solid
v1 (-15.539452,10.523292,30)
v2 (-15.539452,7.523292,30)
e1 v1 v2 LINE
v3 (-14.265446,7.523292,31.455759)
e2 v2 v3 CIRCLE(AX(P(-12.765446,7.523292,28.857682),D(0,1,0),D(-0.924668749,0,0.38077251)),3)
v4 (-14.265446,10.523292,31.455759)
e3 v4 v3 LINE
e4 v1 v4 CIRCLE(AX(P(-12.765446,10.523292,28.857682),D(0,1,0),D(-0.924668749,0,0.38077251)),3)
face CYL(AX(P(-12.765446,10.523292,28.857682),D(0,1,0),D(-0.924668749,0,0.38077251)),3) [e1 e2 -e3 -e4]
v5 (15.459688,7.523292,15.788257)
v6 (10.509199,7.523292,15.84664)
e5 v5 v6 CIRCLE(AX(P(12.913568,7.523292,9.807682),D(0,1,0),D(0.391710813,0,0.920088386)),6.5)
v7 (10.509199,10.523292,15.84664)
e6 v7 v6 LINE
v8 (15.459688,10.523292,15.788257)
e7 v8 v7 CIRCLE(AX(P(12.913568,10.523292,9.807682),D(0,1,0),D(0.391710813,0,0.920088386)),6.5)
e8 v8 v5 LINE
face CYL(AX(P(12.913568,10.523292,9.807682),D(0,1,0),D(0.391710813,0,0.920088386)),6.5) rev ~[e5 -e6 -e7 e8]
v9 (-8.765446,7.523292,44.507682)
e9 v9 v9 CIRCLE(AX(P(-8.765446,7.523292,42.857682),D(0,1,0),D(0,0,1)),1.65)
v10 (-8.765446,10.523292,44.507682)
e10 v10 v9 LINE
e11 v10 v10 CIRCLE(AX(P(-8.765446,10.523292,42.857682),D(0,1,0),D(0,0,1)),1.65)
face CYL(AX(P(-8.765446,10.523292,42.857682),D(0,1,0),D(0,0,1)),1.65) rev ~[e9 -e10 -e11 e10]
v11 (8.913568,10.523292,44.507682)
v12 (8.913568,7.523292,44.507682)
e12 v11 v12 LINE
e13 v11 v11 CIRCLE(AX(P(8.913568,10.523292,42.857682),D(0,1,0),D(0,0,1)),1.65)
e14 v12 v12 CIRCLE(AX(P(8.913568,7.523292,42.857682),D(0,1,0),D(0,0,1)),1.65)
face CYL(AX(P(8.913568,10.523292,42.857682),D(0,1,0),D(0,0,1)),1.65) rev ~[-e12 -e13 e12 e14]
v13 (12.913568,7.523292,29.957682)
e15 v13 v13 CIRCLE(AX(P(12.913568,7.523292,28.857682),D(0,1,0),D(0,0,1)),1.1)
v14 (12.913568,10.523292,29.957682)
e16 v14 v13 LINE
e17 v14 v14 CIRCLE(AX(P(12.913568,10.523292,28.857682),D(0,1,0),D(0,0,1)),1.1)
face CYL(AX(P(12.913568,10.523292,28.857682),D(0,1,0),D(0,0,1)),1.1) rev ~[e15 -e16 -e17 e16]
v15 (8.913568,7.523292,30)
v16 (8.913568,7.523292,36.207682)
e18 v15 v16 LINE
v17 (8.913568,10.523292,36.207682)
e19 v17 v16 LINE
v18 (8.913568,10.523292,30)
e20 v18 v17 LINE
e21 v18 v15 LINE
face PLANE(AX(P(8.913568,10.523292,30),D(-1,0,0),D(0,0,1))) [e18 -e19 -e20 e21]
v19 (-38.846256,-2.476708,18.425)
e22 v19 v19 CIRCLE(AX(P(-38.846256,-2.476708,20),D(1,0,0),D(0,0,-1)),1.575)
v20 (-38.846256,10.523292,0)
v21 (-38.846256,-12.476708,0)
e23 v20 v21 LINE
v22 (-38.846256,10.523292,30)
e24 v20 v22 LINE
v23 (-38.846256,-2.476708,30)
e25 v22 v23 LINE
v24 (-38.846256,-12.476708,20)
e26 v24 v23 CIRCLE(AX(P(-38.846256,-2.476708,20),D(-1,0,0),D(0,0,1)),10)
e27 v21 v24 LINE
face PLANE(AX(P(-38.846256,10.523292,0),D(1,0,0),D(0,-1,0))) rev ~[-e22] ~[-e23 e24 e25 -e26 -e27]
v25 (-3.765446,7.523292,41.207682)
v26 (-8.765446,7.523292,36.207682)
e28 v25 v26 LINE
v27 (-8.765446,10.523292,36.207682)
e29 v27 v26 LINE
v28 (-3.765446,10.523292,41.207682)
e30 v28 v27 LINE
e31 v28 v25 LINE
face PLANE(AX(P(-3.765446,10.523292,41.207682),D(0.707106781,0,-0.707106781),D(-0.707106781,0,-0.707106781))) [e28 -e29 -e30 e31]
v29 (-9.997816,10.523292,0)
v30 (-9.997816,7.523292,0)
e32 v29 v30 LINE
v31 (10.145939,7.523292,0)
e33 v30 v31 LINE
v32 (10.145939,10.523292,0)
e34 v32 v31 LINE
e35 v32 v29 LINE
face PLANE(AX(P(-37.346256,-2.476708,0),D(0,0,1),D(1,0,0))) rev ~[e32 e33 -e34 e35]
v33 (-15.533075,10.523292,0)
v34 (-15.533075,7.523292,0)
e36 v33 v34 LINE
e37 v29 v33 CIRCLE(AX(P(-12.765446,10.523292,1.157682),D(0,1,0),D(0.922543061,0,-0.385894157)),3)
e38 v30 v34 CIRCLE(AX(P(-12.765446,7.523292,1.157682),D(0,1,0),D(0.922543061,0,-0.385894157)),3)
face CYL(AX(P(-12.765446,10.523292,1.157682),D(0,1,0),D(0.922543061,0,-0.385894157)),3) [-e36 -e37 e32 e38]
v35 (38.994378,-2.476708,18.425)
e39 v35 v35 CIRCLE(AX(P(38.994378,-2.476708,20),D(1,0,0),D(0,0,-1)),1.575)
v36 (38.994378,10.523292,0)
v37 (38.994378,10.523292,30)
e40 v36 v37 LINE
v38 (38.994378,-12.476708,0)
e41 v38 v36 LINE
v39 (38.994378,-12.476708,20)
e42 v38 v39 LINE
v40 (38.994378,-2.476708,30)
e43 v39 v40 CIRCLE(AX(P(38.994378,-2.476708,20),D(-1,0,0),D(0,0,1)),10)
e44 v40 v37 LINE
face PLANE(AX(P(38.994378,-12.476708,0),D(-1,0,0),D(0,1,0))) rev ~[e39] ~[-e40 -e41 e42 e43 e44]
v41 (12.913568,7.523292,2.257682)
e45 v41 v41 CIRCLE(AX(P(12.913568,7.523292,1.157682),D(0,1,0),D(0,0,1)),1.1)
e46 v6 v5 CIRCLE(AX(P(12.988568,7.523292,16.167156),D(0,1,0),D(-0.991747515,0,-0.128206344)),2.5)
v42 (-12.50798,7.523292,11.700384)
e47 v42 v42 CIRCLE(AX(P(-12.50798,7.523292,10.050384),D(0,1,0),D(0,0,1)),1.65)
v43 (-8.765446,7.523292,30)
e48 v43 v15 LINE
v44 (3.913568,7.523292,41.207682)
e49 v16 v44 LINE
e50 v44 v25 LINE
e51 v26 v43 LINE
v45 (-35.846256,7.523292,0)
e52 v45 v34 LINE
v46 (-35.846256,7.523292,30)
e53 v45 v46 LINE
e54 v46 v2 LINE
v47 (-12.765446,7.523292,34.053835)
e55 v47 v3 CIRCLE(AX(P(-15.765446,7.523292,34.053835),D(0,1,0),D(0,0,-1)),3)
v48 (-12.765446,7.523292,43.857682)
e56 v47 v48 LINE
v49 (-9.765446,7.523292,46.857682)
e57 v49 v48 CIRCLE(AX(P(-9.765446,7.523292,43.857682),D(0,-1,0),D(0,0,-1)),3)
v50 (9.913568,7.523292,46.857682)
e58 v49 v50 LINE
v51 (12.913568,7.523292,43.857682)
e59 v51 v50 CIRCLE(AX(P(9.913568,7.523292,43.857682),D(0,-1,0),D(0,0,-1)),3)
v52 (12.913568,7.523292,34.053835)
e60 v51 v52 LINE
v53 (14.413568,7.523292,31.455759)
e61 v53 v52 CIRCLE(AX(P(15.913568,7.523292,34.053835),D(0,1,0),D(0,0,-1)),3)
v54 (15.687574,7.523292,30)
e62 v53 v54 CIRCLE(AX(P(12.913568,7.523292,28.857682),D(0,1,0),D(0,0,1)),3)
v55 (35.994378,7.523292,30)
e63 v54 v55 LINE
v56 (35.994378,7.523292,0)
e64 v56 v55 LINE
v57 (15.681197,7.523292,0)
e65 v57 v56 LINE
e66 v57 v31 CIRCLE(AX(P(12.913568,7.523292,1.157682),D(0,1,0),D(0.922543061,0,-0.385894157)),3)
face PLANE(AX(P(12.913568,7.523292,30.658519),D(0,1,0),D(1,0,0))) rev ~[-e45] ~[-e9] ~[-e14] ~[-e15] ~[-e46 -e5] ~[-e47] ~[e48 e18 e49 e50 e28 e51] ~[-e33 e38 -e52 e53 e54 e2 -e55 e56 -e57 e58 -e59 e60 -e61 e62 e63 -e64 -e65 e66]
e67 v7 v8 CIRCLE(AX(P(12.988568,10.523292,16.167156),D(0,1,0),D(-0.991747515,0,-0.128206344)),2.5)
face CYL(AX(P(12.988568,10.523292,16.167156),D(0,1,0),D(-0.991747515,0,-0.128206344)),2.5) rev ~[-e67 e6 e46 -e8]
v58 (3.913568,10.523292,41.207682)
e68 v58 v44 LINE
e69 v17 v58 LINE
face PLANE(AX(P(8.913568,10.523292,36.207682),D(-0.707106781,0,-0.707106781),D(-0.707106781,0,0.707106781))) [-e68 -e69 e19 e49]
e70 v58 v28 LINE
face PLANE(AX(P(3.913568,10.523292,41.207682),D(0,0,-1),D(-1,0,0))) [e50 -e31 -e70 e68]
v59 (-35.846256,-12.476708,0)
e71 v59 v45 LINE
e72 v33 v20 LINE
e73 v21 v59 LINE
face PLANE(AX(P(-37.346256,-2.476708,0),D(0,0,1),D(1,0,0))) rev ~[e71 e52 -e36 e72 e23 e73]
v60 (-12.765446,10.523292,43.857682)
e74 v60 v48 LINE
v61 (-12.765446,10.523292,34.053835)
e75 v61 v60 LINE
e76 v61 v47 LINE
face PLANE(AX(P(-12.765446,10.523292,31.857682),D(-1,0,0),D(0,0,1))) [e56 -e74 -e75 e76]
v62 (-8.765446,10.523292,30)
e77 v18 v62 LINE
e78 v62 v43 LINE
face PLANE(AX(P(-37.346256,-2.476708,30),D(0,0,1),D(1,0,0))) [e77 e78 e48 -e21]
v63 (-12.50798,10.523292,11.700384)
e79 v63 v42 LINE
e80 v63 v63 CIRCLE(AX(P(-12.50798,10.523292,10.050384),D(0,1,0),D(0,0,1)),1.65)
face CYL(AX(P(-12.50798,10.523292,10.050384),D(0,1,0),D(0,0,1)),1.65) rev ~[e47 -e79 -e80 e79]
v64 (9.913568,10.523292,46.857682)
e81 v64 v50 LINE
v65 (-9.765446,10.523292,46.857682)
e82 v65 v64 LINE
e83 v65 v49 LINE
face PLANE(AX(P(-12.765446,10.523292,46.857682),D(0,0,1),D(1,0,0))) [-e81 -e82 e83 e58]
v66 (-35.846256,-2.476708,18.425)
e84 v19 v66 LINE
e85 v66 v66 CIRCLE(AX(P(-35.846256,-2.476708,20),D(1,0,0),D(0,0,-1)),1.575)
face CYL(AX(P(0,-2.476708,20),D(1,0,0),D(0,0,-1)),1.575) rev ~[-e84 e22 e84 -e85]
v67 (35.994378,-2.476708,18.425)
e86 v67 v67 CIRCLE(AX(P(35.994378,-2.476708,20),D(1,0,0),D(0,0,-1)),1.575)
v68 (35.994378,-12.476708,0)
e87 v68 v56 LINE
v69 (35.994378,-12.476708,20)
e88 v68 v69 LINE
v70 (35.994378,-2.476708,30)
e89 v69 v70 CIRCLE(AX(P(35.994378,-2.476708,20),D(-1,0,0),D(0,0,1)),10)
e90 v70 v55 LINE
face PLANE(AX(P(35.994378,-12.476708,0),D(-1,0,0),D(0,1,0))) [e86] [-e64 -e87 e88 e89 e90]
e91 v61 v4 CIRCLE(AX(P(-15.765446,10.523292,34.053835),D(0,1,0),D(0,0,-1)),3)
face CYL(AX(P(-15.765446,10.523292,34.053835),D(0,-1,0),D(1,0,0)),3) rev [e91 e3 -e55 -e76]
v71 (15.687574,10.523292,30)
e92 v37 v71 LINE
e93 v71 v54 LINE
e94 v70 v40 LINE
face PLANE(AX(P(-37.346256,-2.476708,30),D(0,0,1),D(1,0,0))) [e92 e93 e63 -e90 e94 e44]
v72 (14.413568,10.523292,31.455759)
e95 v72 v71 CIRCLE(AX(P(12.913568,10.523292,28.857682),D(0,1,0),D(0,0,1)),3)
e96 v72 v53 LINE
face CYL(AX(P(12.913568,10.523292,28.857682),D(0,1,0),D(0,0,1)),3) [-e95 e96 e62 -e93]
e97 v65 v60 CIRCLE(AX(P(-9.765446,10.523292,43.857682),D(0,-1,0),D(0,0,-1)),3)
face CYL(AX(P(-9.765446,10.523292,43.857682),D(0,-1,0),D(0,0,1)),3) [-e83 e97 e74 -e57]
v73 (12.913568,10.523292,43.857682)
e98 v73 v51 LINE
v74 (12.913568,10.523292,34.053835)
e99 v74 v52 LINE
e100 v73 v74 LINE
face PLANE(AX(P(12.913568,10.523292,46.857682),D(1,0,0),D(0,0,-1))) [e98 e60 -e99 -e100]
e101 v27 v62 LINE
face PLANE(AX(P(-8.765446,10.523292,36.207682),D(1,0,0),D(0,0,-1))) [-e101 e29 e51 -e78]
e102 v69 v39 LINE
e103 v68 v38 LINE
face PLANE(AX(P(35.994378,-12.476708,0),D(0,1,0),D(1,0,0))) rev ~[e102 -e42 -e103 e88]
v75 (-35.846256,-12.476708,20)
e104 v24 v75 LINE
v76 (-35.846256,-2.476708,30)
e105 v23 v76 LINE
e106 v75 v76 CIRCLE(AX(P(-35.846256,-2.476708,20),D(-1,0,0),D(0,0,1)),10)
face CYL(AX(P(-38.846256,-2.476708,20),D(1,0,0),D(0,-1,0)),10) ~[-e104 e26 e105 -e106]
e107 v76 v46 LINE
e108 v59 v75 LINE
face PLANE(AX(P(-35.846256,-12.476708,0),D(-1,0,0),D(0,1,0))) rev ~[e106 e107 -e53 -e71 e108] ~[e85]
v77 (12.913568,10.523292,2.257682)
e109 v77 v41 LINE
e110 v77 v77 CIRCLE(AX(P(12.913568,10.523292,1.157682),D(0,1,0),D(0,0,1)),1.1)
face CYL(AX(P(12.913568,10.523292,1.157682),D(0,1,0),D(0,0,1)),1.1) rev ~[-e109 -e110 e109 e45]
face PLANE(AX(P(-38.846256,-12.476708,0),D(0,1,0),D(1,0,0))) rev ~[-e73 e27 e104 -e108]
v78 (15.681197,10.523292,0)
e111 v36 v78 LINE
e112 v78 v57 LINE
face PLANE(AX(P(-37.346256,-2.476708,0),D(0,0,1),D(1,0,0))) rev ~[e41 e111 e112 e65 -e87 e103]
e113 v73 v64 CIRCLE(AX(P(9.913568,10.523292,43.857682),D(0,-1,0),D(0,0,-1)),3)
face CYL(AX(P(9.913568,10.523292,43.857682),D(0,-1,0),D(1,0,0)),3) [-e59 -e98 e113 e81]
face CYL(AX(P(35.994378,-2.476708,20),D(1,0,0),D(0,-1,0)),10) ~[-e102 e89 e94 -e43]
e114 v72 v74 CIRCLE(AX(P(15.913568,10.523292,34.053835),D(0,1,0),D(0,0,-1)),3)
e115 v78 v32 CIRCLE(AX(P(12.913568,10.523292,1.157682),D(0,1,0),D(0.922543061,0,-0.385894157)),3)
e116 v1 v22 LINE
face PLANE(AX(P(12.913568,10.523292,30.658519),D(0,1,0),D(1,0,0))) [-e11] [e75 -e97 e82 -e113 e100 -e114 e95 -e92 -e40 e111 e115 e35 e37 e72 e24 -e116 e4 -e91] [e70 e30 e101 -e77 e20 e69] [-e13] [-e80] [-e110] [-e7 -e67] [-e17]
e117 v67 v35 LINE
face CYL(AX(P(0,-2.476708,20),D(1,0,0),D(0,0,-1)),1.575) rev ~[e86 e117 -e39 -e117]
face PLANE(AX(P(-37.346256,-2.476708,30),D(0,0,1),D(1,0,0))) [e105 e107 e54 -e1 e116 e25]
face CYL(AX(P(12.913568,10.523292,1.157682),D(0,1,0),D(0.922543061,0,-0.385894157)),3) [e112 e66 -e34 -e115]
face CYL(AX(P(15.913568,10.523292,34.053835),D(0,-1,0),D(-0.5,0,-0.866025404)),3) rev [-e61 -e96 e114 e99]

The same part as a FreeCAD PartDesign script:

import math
import FreeCAD as App
import Part
import Sketcher

V = App.Vector
Q = App.Units.Quantity


def edges_at(feature, points):
    """Names of the edges that pass closest to the given points."""
    edges = feature.Shape.Edges
    near = lambda p: min(range(len(edges)), key=lambda i: edges[i].distToShape(Part.Vertex(*p))[0])
    return sorted({f"Edge{near(p) + 1}" for p in points})


def add_polygon(sketch, points):
    """Adds a closed chain of lines whose ends are joined by coincident constraints."""
    first, n = sketch.GeometryCount, len(points)
    for a, b in zip(points, points[1:] + points[:1]):
        sketch.addGeometry(Part.LineSegment(App.Vector(*a, 0), App.Vector(*b, 0)), False)
    for i in range(n):
        sketch.addConstraint(Sketcher.Constraint("Coincident", first + i, 2, first + (i + 1) % n, 1))

doc = App.newDocument("Part")
body = doc.addObject("PartDesign::Body", "Body")

# Sketch on XY plane
sketch1 = body.newObject("Sketcher::SketchObject", "Sketch")
sketch1.AttachmentSupport = (doc.getObject("XY_Plane"), [""])
sketch1.MapMode = "FlatFace"
add_polygon(sketch1, [(-38.8, -12.5), (-35.8, -12.5), (-35.8, 7.5), (36, 7.5), (36, -12.5), (39, -12.5), (39, 10.5), (-38.8, 10.5)])  # lines 0-7
sketch1.addConstraint([
    Sketcher.Constraint("Horizontal", 0),
    Sketcher.Constraint("Vertical", 1),
    Sketcher.Constraint("Horizontal", 2),
    Sketcher.Constraint("Vertical", 3),
    Sketcher.Constraint("Horizontal", 4),
    Sketcher.Constraint("Vertical", 5),
    Sketcher.Constraint("Horizontal", 6),
    Sketcher.Constraint("Vertical", 7),
    Sketcher.Constraint("Horizontal", 0, 2, 3, 2),
    Sketcher.Constraint("Equal", 0, 4),
    Sketcher.Constraint("DistanceX", 0, 1, 0, 2, Q("3 mm")),
    Sketcher.Constraint("DistanceY", 1, 1, 1, 2, Q("20 mm")),
    Sketcher.Constraint("DistanceY", 5, 1, 5, 2, Q("23 mm")),
    Sketcher.Constraint("DistanceX", 2, 1, 2, 2, Q("71.840634 mm")),
    Sketcher.Constraint("DistanceX", -1, 1, 2, 2, Q("35.994378 mm")),
    Sketcher.Constraint("DistanceY", 0, 2, -1, 1, Q("12.476708 mm")),
])
pad1 = body.newObject("PartDesign::Pad", "Pad")
pad1.Profile = sketch1
pad1.Length = 30
doc.recompute()

fillet = body.newObject("PartDesign::Fillet", "Fillet")
fillet.Base = (pad1, edges_at(pad1, [(37.494, -12.477, 30), (-37.346, -12.477, 30)]))
fillet.Radius = 10

# Sketch on YZ plane
sketch2 = body.newObject("Sketcher::SketchObject", "Sketch001")
sketch2.AttachmentSupport = (doc.getObject("YZ_Plane"), [""])
sketch2.MapMode = "FlatFace"
sketch2.addGeometry(Part.Circle(V(-2.5, 20, 0), V(0, 0, 1), 1.6), False)
sketch2.addConstraint([
    Sketcher.Constraint("Diameter", 0, Q("3.15 mm")),
    Sketcher.Constraint("DistanceY", -1, 1, 0, 3, Q("20 mm")),
    Sketcher.Constraint("DistanceX", 0, 3, -1, 1, Q("2.476708 mm")),
])
pocket1 = body.newObject("PartDesign::Pocket", "Pocket")
pocket1.Profile = sketch2
pocket1.Length = 100
pocket1.Midplane = True

# Sketch on XZ plane
sketch3 = body.newObject("Sketcher::SketchObject", "Sketch002")
sketch3.AttachmentSupport = (doc.getObject("XZ_Plane"), [""])
sketch3.MapMode = "FlatFace"
sketch3.AttachmentOffset = App.Placement(V(0, 0, -10.523292), App.Rotation())
sketch3.addGeometry([
    Part.ArcOfCircle(Part.Circle(V(12.9, 9.8, 0), V(0, 0, 1), 6.5), math.radians(112), math.radians(427)),  # 0
    Part.ArcOfCircle(Part.Circle(V(13, 16.2, 0), V(0, 0, 1), 2.5), math.radians(-9), math.radians(187)),  # 1
    Part.Circle(V(12.9, 1.2, 0), V(0, 0, 1), 1.1),  # 2
    Part.Circle(V(12.9, 28.9, 0), V(0, 0, 1), 1.1),  # 3
    Part.Circle(V(-12.5, 10.1, 0), V(0, 0, 1), 1.6),  # 4
], False)
sketch3.addConstraint([
    Sketcher.Constraint("Coincident", 0, 1, 1, 2),
    Sketcher.Constraint("Coincident", 1, 1, 0, 2),
    Sketcher.Constraint("Equal", 2, 3),
    Sketcher.Constraint("Vertical", 0, 3, 2, 3),
    Sketcher.Constraint("Vertical", 2, 3, 3, 3),
    Sketcher.Constraint("Diameter", 2, Q("2.2 mm")),
    Sketcher.Constraint("Diameter", 4, Q("3.3 mm")),
    Sketcher.Constraint("Radius", 0, Q("6.5 mm")),
    Sketcher.Constraint("Radius", 1, Q("2.5 mm")),
    Sketcher.Constraint("DistanceY", 2, 3, 3, 3, Q("27.7 mm")),
    Sketcher.Constraint("DistanceY", 2, 3, 0, 3, Q("8.65 mm")),
    Sketcher.Constraint("DistanceX", 0, 3, 1, 3, Q("0.075 mm")),
    Sketcher.Constraint("DistanceX", -1, 1, 0, 1, Q("10.509199 mm")),
    Sketcher.Constraint("DistanceY", 0, 3, 4, 3, Q("0.242702 mm")),
    Sketcher.Constraint("DistanceY", 1, 1, 1, 3, Q("0.378899 mm")),
    Sketcher.Constraint("DistanceX", 4, 3, -1, 1, Q("12.50798 mm")),
    Sketcher.Constraint("DistanceY", -1, 1, 0, 1, Q("15.84664 mm")),
])
pocket2 = body.newObject("PartDesign::Pocket", "Pocket001")
pocket2.Profile = sketch3
pocket2.Length = 3
pocket2.Reversed = True

# Sketch on XZ plane
sketch4 = body.newObject("Sketcher::SketchObject", "Sketch003")
sketch4.AttachmentSupport = (doc.getObject("XZ_Plane"), [""])
sketch4.MapMode = "FlatFace"
sketch4.AttachmentOffset = App.Placement(V(0, 0, -10.523292), App.Rotation())
sketch4.addGeometry([
    Part.LineSegment(V(15.7, 30, 0), V(8.9, 30, 0)),  # 0
    Part.LineSegment(V(8.9, 30, 0), V(8.9, 36.2, 0)),  # 1
    Part.LineSegment(V(8.9, 36.2, 0), V(3.9, 41.2, 0)),  # 2
    Part.LineSegment(V(3.9, 41.2, 0), V(-3.8, 41.2, 0)),  # 3
    Part.LineSegment(V(-3.8, 41.2, 0), V(-8.8, 36.2, 0)),  # 4
    Part.LineSegment(V(-8.8, 36.2, 0), V(-8.8, 30, 0)),  # 5
    Part.LineSegment(V(-8.8, 30, 0), V(-15.5, 30, 0)),  # 6
    Part.ArcOfCircle(Part.Circle(V(-12.8, 28.9, 0), V(0, 0, 1), 3), math.radians(90), math.radians(158)),  # 7
    Part.LineSegment(V(-12.8, 31.9, 0), V(-12.8, 46.9, 0)),  # 8
    Part.LineSegment(V(-12.8, 46.9, 0), V(12.9, 46.9, 0)),  # 9
    Part.LineSegment(V(12.9, 46.9, 0), V(12.9, 31.9, 0)),  # 10
    Part.ArcOfCircle(Part.Circle(V(12.9, 28.9, 0), V(0, 0, 1), 3), math.radians(22), math.radians(90)),  # 11
    Part.Circle(V(8.9, 42.9, 0), V(0, 0, 1), 1.6),  # 12
    Part.Circle(V(-8.8, 42.9, 0), V(0, 0, 1), 1.6),  # 13
    Part.LineSegment(V(10.1, 0, 0), V(15.7, 0, 0)),  # 14
    Part.ArcOfCircle(Part.Circle(V(12.9, 1.2, 0), V(0, 0, 1), 3), math.radians(-157), math.radians(-23)),  # 15
    Part.LineSegment(V(-15.5, 0, 0), V(-10, 0, 0)),  # 16
    Part.ArcOfCircle(Part.Circle(V(-12.8, 1.2, 0), V(0, 0, 1), 3), math.radians(-157), math.radians(-23)),  # 17
], False)
sketch4.addConstraint([
    Sketcher.Constraint("Coincident", 0, 2, 1, 1),
    Sketcher.Constraint("Coincident", 1, 2, 2, 1),
    Sketcher.Constraint("Coincident", 2, 2, 3, 1),
    Sketcher.Constraint("Coincident", 3, 2, 4, 1),
    Sketcher.Constraint("Coincident", 4, 2, 5, 1),
    Sketcher.Constraint("Coincident", 5, 2, 6, 1),
    Sketcher.Constraint("Coincident", 6, 2, 7, 2),
    Sketcher.Constraint("Coincident", 7, 1, 8, 1),
    Sketcher.Constraint("Coincident", 8, 2, 9, 1),
    Sketcher.Constraint("Coincident", 9, 2, 10, 1),
    Sketcher.Constraint("Coincident", 10, 2, 11, 2),
    Sketcher.Constraint("Coincident", 11, 1, 0, 1),
    Sketcher.Constraint("Coincident", 14, 1, 15, 1),
    Sketcher.Constraint("Coincident", 15, 2, 14, 2),
    Sketcher.Constraint("Coincident", 16, 1, 17, 1),
    Sketcher.Constraint("Coincident", 17, 2, 16, 2),
    Sketcher.Constraint("Horizontal", 0),
    Sketcher.Constraint("Vertical", 1),
    Sketcher.Constraint("Horizontal", 3),
    Sketcher.Constraint("Vertical", 5),
    Sketcher.Constraint("Horizontal", 6),
    Sketcher.Constraint("Vertical", 8),
    Sketcher.Constraint("Horizontal", 9),
    Sketcher.Constraint("Vertical", 10),
    Sketcher.Constraint("Horizontal", 14),
    Sketcher.Constraint("Horizontal", 16),
    Sketcher.Constraint("Equal", 7, 11),
    Sketcher.Constraint("Equal", 12, 13),
    Sketcher.Constraint("Equal", 11, 15),
    Sketcher.Constraint("Equal", 15, 17),
    Sketcher.Constraint("PointOnObject", 14, 1, -1),
    Sketcher.Constraint("PointOnObject", 16, 1, -1),
    Sketcher.Constraint("Perpendicular", 2, 4),
    Sketcher.Constraint("Horizontal", 7, 3, 11, 3),
    Sketcher.Constraint("Horizontal", 12, 3, 13, 3),
    Sketcher.Constraint("Horizontal", 15, 3, 17, 3),
    Sketcher.Constraint("Horizontal", 1, 2, 4, 2),
    Sketcher.Constraint("Horizontal", 0, 2, 5, 2),
    Sketcher.Constraint("Vertical", 11, 3, 15, 3),
    Sketcher.Constraint("Vertical", 7, 3, 17, 3),
    Sketcher.Constraint("Vertical", 12, 3, 0, 2),
    Sketcher.Constraint("Vertical", 13, 3, 4, 2),
    Sketcher.Constraint("Vertical", 17, 3, 7, 1),
    Sketcher.Constraint("Vertical", 15, 3, 9, 2),
    Sketcher.Constraint("Equal", 0, 6),
    Sketcher.Constraint("Equal", 2, 4),
    Sketcher.Constraint("Radius", 7, Q("3 mm")),
    Sketcher.Constraint("Diameter", 12, Q("3.3 mm")),
    Sketcher.Constraint("DistanceY", 8, 1, 8, 2, Q("15 mm")),
    Sketcher.Constraint("DistanceY", -1, 1, 0, 2, Q("30 mm")),
    Sketcher.Constraint("DistanceX", 12, 3, 11, 3, Q("4 mm")),
    Sketcher.Constraint("DistanceY", 11, 3, 12, 3, Q("14 mm")),
    Sketcher.Constraint("DistanceX", 2, 2, 12, 3, Q("5 mm")),
    Sketcher.Constraint("DistanceY", 15, 3, 11, 3, Q("27.7 mm")),
    Sketcher.Constraint("DistanceY", 1, 2, 12, 3, Q("6.65 mm")),
    Sketcher.Constraint("DistanceX", 14, 1, 14, 2, Q("5.535258 mm")),
    Sketcher.Constraint("DistanceX", 3, 2, 3, 1, Q("7.679014 mm")),
    Sketcher.Constraint("DistanceX", -1, 1, 11, 3, Q("12.913568 mm")),
])
pad2 = body.newObject("PartDesign::Pad", "Pad001")
pad2.Profile = sketch4
pad2.Length = 3
doc.recompute()

fillet2 = body.newObject("PartDesign::Fillet", "Fillet001")
fillet2.Base = (pad2, edges_at(pad2, [
    (12.914, 9.023, 31.858),
    (12.914, 9.023, 46.858),
    (-12.765, 9.023, 46.858),
    (-12.765, 9.023, 31.858),
]))
fillet2.Radius = 3

doc.recompute()
